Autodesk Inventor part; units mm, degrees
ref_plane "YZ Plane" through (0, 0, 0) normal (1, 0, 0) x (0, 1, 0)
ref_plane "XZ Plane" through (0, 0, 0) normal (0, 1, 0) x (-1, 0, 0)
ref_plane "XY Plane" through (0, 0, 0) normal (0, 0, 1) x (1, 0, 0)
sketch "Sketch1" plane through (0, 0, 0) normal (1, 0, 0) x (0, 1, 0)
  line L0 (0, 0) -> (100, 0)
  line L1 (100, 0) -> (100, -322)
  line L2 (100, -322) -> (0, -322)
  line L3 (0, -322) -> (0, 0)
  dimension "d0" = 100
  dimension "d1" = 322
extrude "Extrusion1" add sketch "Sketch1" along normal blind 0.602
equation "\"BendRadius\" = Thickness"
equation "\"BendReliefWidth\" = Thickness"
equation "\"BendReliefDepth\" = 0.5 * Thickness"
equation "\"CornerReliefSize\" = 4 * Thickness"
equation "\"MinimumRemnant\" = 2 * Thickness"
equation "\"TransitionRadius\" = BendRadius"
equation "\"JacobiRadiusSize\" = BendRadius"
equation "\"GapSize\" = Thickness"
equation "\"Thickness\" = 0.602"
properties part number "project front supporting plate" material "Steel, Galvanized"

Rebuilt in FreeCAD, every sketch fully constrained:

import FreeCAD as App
import Part
import Sketcher
from FreeCAD import Vector


def add_polygon(sketch, points):
    """Adds a closed chain of lines whose ends are joined by coincident constraints."""
    first, n = sketch.GeometryCount, len(points)
    for a, b in zip(points, points[1:] + points[:1]):
        sketch.addGeometry(Part.LineSegment(App.Vector(*a, 0), App.Vector(*b, 0)), False)
    for i in range(n):
        sketch.addConstraint(Sketcher.Constraint("Coincident", first + i, 2, first + (i + 1) % n, 1))

doc = App.newDocument("Part")
body = doc.addObject("PartDesign::Body", "Body")

# Sketch on YZ plane
sketch1 = body.newObject("Sketcher::SketchObject", "Sketch")
sketch1.AttachmentSupport = (doc.getObject("YZ_Plane"), [""])
sketch1.MapMode = "FlatFace"
add_polygon(sketch1, [(100, 0), (0, 0), (0, -322), (100, -322)])  # lines 0-3
sketch1.addConstraint([
    Sketcher.Constraint("Horizontal", 0),
    Sketcher.Constraint("Vertical", 1),
    Sketcher.Constraint("Horizontal", 2),
    Sketcher.Constraint("Vertical", 3),
    Sketcher.Constraint("Coincident", 0, 2, -1, 1),
    Sketcher.Constraint("DistanceX", 0, 2, 0, 1, 100.0),
    Sketcher.Constraint("DistanceY", 1, 2, 1, 1, 322.0),
])
pad1 = body.newObject("PartDesign::Pad", "Pad")
pad1.Profile = sketch1
pad1.Length = 0.602

doc.recompute()
